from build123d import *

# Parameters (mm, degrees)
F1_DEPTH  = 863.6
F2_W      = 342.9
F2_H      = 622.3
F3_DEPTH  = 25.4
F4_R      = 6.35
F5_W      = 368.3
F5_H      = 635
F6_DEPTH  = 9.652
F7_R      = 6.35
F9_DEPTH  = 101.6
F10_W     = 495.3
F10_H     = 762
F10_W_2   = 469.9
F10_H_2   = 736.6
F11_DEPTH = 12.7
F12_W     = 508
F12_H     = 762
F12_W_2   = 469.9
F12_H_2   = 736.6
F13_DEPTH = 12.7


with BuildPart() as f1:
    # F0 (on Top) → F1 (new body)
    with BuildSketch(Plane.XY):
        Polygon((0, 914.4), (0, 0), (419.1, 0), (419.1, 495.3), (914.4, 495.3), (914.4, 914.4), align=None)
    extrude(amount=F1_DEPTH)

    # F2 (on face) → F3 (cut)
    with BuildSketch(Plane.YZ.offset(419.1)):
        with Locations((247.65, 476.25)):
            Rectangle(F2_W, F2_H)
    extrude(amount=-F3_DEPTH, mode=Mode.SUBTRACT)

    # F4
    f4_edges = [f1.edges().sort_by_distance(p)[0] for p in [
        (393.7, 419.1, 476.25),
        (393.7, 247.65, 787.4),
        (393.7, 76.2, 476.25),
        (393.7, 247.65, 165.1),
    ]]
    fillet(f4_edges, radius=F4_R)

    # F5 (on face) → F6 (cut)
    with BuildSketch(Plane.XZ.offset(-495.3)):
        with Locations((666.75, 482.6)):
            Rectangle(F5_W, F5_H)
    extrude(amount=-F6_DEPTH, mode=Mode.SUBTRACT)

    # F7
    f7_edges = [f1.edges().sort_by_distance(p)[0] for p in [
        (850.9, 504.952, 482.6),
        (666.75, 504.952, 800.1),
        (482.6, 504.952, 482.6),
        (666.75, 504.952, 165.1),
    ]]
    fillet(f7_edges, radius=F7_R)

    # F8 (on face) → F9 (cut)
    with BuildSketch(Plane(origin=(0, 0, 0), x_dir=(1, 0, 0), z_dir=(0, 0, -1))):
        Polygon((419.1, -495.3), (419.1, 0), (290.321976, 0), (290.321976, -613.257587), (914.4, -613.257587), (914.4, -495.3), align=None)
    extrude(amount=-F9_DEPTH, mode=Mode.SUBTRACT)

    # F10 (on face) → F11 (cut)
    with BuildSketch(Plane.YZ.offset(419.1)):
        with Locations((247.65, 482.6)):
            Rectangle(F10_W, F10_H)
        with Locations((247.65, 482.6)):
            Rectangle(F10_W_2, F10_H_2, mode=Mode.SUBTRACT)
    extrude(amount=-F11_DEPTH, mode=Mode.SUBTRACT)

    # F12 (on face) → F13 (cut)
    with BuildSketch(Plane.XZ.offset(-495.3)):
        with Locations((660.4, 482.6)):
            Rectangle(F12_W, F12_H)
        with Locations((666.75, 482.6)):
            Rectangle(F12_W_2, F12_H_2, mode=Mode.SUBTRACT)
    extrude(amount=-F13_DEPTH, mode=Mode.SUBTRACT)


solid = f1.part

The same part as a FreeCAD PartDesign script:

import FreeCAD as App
import Part
import Sketcher
Q = App.Units.Quantity


def edges_at(feature, points):
    """Names of the edges that pass closest to the given points."""
    edges = feature.Shape.Edges
    near = lambda p: min(range(len(edges)), key=lambda i: edges[i].distToShape(Part.Vertex(*p))[0])
    return sorted({f"Edge{near(p) + 1}" for p in points})


def add_polygon(sketch, points):
    """Adds a closed chain of lines whose ends are joined by coincident constraints."""
    first, n = sketch.GeometryCount, len(points)
    for a, b in zip(points, points[1:] + points[:1]):
        sketch.addGeometry(Part.LineSegment(App.Vector(*a, 0), App.Vector(*b, 0)), False)
    for i in range(n):
        sketch.addConstraint(Sketcher.Constraint("Coincident", first + i, 2, first + (i + 1) % n, 1))

doc = App.newDocument("Part")
body = doc.addObject("PartDesign::Body", "Body")

sketch1 = body.newObject("Sketcher::SketchObject", "Sketch")
sketch1.AttachmentSupport = (doc.getObject("XY_Plane"), [""])
sketch1.MapMode = "FlatFace"
add_polygon(sketch1, [(0, 914), (0, 0), (419, 0), (419, 495), (914, 495), (914, 914)])
sketch1.addConstraint([
    Sketcher.Constraint("Vertical", 0),
    Sketcher.Constraint("Horizontal", 1),
    Sketcher.Constraint("Vertical", 2),
    Sketcher.Constraint("Horizontal", 3),
    Sketcher.Constraint("Vertical", 4),
    Sketcher.Constraint("Horizontal", 5),
    Sketcher.Constraint("Coincident", 0, 2, -1, 1),
    Sketcher.Constraint("Equal", 5, 0),
    Sketcher.Constraint("Equal", 3, 2),
    Sketcher.Constraint("DistanceX", 5, 2, 5, 1, Q("36 in")),
    Sketcher.Constraint("DistanceX", 1, 1, 1, 2, Q("16.5 in")),
])
pad1 = body.newObject("PartDesign::Pad", "Pad")
pad1.Profile = sketch1
pad1.Length = Q("34 in")

sketch2 = body.newObject("Sketcher::SketchObject", "Sketch001")
sketch2.AttachmentSupport = (doc.getObject("YZ_Plane"), [""])
sketch2.MapMode = "FlatFace"
sketch2.AttachmentOffset = App.Placement(App.Vector(0, 0, 16.5 * 25.4), App.Rotation())
add_polygon(sketch2, [(76, 787), (76, 165), (419, 165), (419, 787)])
sketch2.addConstraint([
    Sketcher.Constraint("Vertical", 0),
    Sketcher.Constraint("Horizontal", 1),
    Sketcher.Constraint("Vertical", 2),
    Sketcher.Constraint("Horizontal", 3),
    Sketcher.Constraint("DistanceX", 1, 1, 1, 2, Q("13.5 in")),
    Sketcher.Constraint("DistanceY", 0, 2, 0, 1, Q("24.5 in")),
    Sketcher.Constraint("DistanceX", -1, 1, 0, 2, Q("3 in")),
    Sketcher.Constraint("DistanceY", -1, 1, 2, 2, Q("31 in")),
])
pocket1 = body.newObject("PartDesign::Pocket", "Pocket")
pocket1.Profile = sketch2
pocket1.Length = Q("1 in")
doc.recompute()

fillet = body.newObject("PartDesign::Fillet", "Fillet")
fillet.Base = (pocket1, edges_at(pocket1, [
    (393.7, 419.1, 476.25),
    (393.7, 247.65, 787.4),
    (393.7, 76.2, 476.25),
    (393.7, 247.65, 165.1),
]))
fillet.Radius = Q("0.25 in")

sketch3 = body.newObject("Sketcher::SketchObject", "Sketch002")
sketch3.AttachmentSupport = (doc.getObject("XZ_Plane"), [""])
sketch3.MapMode = "FlatFace"
sketch3.AttachmentOffset = App.Placement(App.Vector(0, 0, -19.5 * 25.4), App.Rotation())
add_polygon(sketch3, [(483, 800), (483, 165), (851, 165), (851, 800)])
sketch3.addConstraint([
    Sketcher.Constraint("Vertical", 0),
    Sketcher.Constraint("Horizontal", 1),
    Sketcher.Constraint("Vertical", 2),
    Sketcher.Constraint("Horizontal", 3),
    Sketcher.Constraint("DistanceY", 0, 2, 0, 1, Q("25 in")),
    Sketcher.Constraint("DistanceX", 1, 1, 1, 2, Q("14.5 in")),
    Sketcher.Constraint("DistanceX", -1, 1, 0, 2, Q("19 in")),
    Sketcher.Constraint("DistanceY", -1, 1, 0, 2, Q("6.5 in")),
])
pocket2 = body.newObject("PartDesign::Pocket", "Pocket001")
pocket2.Profile = sketch3
pocket2.Length = Q("0.38 in")
doc.recompute()

fillet2 = body.newObject("PartDesign::Fillet", "Fillet001")
fillet2.Base = (pocket2, edges_at(pocket2, [
    (850.9, 504.952, 482.6),
    (666.75, 504.952, 800.1),
    (482.6, 504.952, 482.6),
    (666.75, 504.952, 165.1),
]))
fillet2.Radius = Q("0.25 in")

sketch4 = body.newObject("Sketcher::SketchObject", "Sketch003")
sketch4.AttachmentSupport = (doc.getObject("XY_Plane"), [""])
sketch4.MapMode = "FlatFace"
add_polygon(sketch4, [(419, 495), (419, 0), (290, 0), (290, 613), (914, 613), (914, 495)])
sketch4.addConstraint([
    Sketcher.Constraint("Vertical", 0),
    Sketcher.Constraint("Horizontal", 1),
    Sketcher.Constraint("Vertical", 2),
    Sketcher.Constraint("Horizontal", 3),
    Sketcher.Constraint("Vertical", 4),
    Sketcher.Constraint("Horizontal", 5),
    Sketcher.Constraint("PointOnObject", 0, 2, -1),
    Sketcher.Constraint("Equal", 5, 0),
    Sketcher.Constraint("DistanceX", 5, 2, 5, 1, Q("19.5 in")),
    Sketcher.Constraint("DistanceX", -1, 1, 3, 2, Q("36 in")),
    Sketcher.Constraint("DistanceX", 1, 2, 1, 1, 128.778024),
    Sketcher.Constraint("DistanceY", 2, 1, 2, 2, 613.257587),
])
pocket3 = body.newObject("PartDesign::Pocket", "Pocket002")
pocket3.Profile = sketch4
pocket3.Length = Q("4 in")
pocket3.Reversed = True

sketch5 = body.newObject("Sketcher::SketchObject", "Sketch004")
sketch5.AttachmentSupport = (doc.getObject("YZ_Plane"), [""])
sketch5.MapMode = "FlatFace"
sketch5.AttachmentOffset = App.Placement(App.Vector(0, 0, 16.5 * 25.4), App.Rotation())
add_polygon(sketch5, [(0, 864), (0, 102), (495, 102), (495, 864)])
add_polygon(sketch5, [(483, 114), (13, 114), (13, 851), (483, 851)])
sketch5.addConstraint([
    Sketcher.Constraint("Vertical", 0),
    Sketcher.Constraint("Horizontal", 1),
    Sketcher.Constraint("Vertical", 2),
    Sketcher.Constraint("Horizontal", 3),
    Sketcher.Constraint("Horizontal", 4),
    Sketcher.Constraint("Vertical", 5),
    Sketcher.Constraint("Horizontal", 6),
    Sketcher.Constraint("Vertical", 7),
    Sketcher.Constraint("PointOnObject", 0, 2, -2),
    Sketcher.Constraint("DistanceY", 0, 2, 0, 1, Q("30 in")),
    Sketcher.Constraint("DistanceY", 5, 1, 5, 2, Q("29 in")),
    Sketcher.Constraint("DistanceX", 1, 1, 1, 2, Q("19.5 in")),
    Sketcher.Constraint("DistanceX", 4, 2, 4, 1, Q("18.5 in")),
    Sketcher.Constraint("DistanceY", -1, 1, 0, 2, Q("4 in")),
    Sketcher.Constraint("DistanceX", -1, 1, 6, 2, Q("19 in")),
    Sketcher.Constraint("DistanceY", -1, 1, 4, 2, Q("4.5 in")),
])
pocket4 = body.newObject("PartDesign::Pocket", "Pocket003")
pocket4.Profile = sketch5
pocket4.Length = Q("0.5 in")

sketch6 = body.newObject("Sketcher::SketchObject", "Sketch005")
sketch6.AttachmentSupport = (doc.getObject("XZ_Plane"), [""])
sketch6.MapMode = "FlatFace"
sketch6.AttachmentOffset = App.Placement(App.Vector(0, 0, -19.5 * 25.4), App.Rotation())
add_polygon(sketch6, [(406, 864), (406, 102), (914, 102), (914, 864)])
add_polygon(sketch6, [(902, 114), (432, 114), (432, 851), (902, 851)])
sketch6.addConstraint([
    Sketcher.Constraint("Vertical", 0),
    Sketcher.Constraint("Horizontal", 1),
    Sketcher.Constraint("Vertical", 2),
    Sketcher.Constraint("Horizontal", 3),
    Sketcher.Constraint("Horizontal", 4),
    Sketcher.Constraint("Vertical", 5),
    Sketcher.Constraint("Horizontal", 6),
    Sketcher.Constraint("Vertical", 7),
    Sketcher.Constraint("DistanceX", 1, 1, 1, 2, Q("20 in")),
    Sketcher.Constraint("DistanceY", 0, 2, 0, 1, Q("30 in")),
    Sketcher.Constraint("DistanceY", 5, 1, 5, 2, Q("29 in")),
    Sketcher.Constraint("DistanceX", 4, 2, 4, 1, Q("18.5 in")),
    Sketcher.Constraint("DistanceX", -1, 1, 0, 2, Q("16 in")),
    Sketcher.Constraint("DistanceY", -1, 1, 0, 2, Q("4 in")),
    Sketcher.Constraint("DistanceX", -1, 1, 4, 2, Q("17 in")),
    Sketcher.Constraint("DistanceY", -1, 1, 4, 2, Q("4.5 in")),
])
pocket5 = body.newObject("PartDesign::Pocket", "Pocket004")
pocket5.Profile = sketch6
pocket5.Length = Q("0.5 in")

doc.recompute()
